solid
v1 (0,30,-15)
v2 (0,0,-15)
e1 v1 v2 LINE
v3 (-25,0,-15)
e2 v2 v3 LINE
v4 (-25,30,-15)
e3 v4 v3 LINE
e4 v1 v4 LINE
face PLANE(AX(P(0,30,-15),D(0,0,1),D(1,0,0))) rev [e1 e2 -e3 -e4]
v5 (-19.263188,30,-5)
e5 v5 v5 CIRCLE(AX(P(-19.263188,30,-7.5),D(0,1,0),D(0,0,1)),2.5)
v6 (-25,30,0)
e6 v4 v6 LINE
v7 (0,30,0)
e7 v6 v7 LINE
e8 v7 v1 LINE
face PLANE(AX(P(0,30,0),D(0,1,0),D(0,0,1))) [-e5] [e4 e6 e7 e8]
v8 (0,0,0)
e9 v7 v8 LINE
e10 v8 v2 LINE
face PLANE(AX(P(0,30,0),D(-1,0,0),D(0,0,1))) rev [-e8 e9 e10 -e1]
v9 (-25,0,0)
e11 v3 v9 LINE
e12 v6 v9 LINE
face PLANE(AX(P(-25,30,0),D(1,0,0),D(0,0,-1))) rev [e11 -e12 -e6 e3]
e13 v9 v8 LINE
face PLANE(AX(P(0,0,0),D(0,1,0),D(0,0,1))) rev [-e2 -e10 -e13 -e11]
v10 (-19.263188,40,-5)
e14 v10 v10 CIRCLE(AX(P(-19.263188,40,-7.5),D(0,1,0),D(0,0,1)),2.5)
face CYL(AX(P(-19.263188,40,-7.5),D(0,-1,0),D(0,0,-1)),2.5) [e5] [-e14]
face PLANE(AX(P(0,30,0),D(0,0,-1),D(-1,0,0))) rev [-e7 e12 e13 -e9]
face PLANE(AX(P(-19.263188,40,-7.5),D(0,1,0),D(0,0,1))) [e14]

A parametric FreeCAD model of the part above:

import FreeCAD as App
import Part
import Sketcher

doc = App.newDocument("Part")
body = doc.addObject("PartDesign::Body", "Body")

sketch1 = doc.addObject("Sketcher::SketchObject", "Sketch")
body.addObject(sketch1)
sketch1.AttachmentSupport = (doc.XZ_Plane, [""])
sketch1.MapMode = "FlatFace"
sketch1.addGeometry([
    Part.LineSegment(App.Vector(-25, -15, 0), App.Vector(-25, 0, 0)),
    Part.LineSegment(App.Vector(-25, 0, 0), App.Vector(0, 0, 0)),
    Part.LineSegment(App.Vector(0, 0, 0), App.Vector(0, -15, 0)),
    Part.LineSegment(App.Vector(0, -15, 0), App.Vector(-25, -15, 0)),
], False)
sketch1.addConstraint([
    Sketcher.Constraint("Coincident", 0, 2, 1, 1),
    Sketcher.Constraint("Coincident", 1, 2, 2, 1),
    Sketcher.Constraint("Coincident", 2, 2, 3, 1),
    Sketcher.Constraint("Coincident", 3, 2, 0, 1),
    Sketcher.Constraint("Vertical", 0),
    Sketcher.Constraint("Horizontal", 1),
    Sketcher.Constraint("Vertical", 2),
    Sketcher.Constraint("Horizontal", 3),
    Sketcher.Constraint("Coincident", 1, 2, -1, 1),
    Sketcher.Constraint("DistanceX", 1, 1, 1, 2, 25.0),
    Sketcher.Constraint("DistanceY", 0, 1, 0, 2, 15.0),
])
pad1 = doc.addObject("PartDesign::Pad", "Pad")
body.addObject(pad1)
pad1.Profile = sketch1
pad1.Length = 30
pad1.Reversed = True

sketch2 = doc.addObject("Sketcher::SketchObject", "Sketch001")
body.addObject(sketch2)
sketch2.AttachmentSupport = (doc.XZ_Plane, [""])
sketch2.MapMode = "FlatFace"
sketch2.AttachmentOffset = App.Placement(App.Vector(0, 0, -30), App.Rotation())
sketch2.addGeometry(Part.Circle(App.Vector(-19.263188, -7.5, 0), App.Vector(0, 0, 1), 2.5), False)
sketch2.addConstraint([
    Sketcher.Constraint("Diameter", 0, 5.0),
    Sketcher.Constraint("DistanceY", 0, 3, -1, 1, 7.5),
    Sketcher.Constraint("DistanceX", 0, 3, -1, 1, 19.263188),
])
pad2 = doc.addObject("PartDesign::Pad", "Pad001")
body.addObject(pad2)
pad2.Profile = sketch2
pad2.Length = 10
pad2.Reversed = True

doc.recompute()
